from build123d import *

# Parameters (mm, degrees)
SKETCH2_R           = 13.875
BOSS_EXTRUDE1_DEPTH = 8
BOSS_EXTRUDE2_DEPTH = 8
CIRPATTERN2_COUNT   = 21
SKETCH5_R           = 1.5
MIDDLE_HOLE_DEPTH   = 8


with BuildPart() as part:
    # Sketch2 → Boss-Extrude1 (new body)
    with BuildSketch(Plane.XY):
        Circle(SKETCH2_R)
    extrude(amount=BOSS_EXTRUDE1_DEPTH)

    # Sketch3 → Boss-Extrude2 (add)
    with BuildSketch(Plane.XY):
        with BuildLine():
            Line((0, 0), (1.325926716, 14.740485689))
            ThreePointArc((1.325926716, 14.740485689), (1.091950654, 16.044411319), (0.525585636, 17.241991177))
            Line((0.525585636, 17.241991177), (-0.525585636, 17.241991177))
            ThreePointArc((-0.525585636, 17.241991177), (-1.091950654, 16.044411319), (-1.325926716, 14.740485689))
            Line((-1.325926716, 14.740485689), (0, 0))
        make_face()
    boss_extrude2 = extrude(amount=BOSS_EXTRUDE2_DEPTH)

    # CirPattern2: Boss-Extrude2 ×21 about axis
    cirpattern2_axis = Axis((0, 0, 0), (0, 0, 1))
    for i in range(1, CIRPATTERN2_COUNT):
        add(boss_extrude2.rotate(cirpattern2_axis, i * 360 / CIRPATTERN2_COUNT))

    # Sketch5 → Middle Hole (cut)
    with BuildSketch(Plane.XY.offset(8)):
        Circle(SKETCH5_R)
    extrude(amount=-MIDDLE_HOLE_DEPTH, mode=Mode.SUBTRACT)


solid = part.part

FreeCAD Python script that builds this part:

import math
import FreeCAD as App
import Part
import Sketcher

V = App.Vector
Q = App.Units.Quantity

doc = App.newDocument("Part")
body = doc.addObject("PartDesign::Body", "Body")

sketch1 = doc.addObject("Sketcher::SketchObject", "Sketch")
body.addObject(sketch1)
sketch1.AttachmentSupport = (doc.XY_Plane, [""])
sketch1.MapMode = "FlatFace"
sketch1.addGeometry(Part.Circle(V(0, 0, 0), V(0, 0, 1), 13.875), False)
sketch1.addConstraint(Sketcher.Constraint("Coincident", 0, 3, -1, 1))
sketch1.addConstraint(Sketcher.Constraint("Diameter", 0, Q("27.75 mm")))
pad1 = doc.addObject("PartDesign::Pad", "Pad")
body.addObject(pad1)
pad1.Profile = sketch1
pad1.Length = 8

sketch2 = doc.addObject("Sketcher::SketchObject", "Sketch001")
body.addObject(sketch2)
sketch2.AttachmentSupport = (doc.XY_Plane, [""])
sketch2.MapMode = "FlatFace"
sketch2.addGeometry(Part.LineSegment(V(0, 0, 0), V(1.325927, 14.740486, 0)), False)
sketch2.addGeometry(Part.ArcOfCircle(Part.Circle(V(-3.697628, 14.512016, 0), V(0, 0, 1), 5.028747), math.radians(2.604005), math.radians(32.879492)), False)
sketch2.addGeometry(Part.LineSegment(V(0.525586, 17.241991, 0), V(-0.525586, 17.241991, 0)), False)
sketch2.addGeometry(Part.ArcOfCircle(Part.Circle(V(3.697628, 14.512016, 0), V(0, 0, 1), 5.028747), math.radians(147.120508), math.radians(177.395995)), False)
sketch2.addGeometry(Part.LineSegment(V(-1.325927, 14.740486, 0), V(0, 0, 0)), False)
sketch2.addConstraint(Sketcher.Constraint("Coincident", 0, 2, 1, 1))
sketch2.addConstraint(Sketcher.Constraint("Coincident", 1, 2, 2, 1))
sketch2.addConstraint(Sketcher.Constraint("Coincident", 2, 2, 3, 1))
sketch2.addConstraint(Sketcher.Constraint("Coincident", 3, 2, 4, 1))
sketch2.addConstraint(Sketcher.Constraint("Coincident", 4, 2, 0, 1))
sketch2.addConstraint(Sketcher.Constraint("Horizontal", 2))
sketch2.addConstraint(Sketcher.Constraint("Coincident", 4, 2, -1, 1))
sketch2.addConstraint(Sketcher.Constraint("Equal", 1, 3))
sketch2.addConstraint(Sketcher.Constraint("Symmetric", 1, 3, 3, 3, -2))
sketch2.addConstraint(Sketcher.Constraint("Horizontal", 0, 2, 3, 2))
sketch2.addConstraint(Sketcher.Constraint("Distance", 0, Q("14.8 mm")))
sketch2.addConstraint(Sketcher.Constraint("Angle", 0, Q("84.86 deg")))
sketch2.addConstraint(Sketcher.Constraint("Radius", 1, Q("5.028747 mm")))
sketch2.addConstraint(Sketcher.Constraint("DistanceX", 2, 2, 2, 1, Q("1.051171 mm")))
sketch2.addConstraint(Sketcher.Constraint("DistanceX", 0, 2, 3, 3, Q("2.371701 mm")))
pad2 = doc.addObject("PartDesign::Pad", "Pad001")
body.addObject(pad2)
pad2.Profile = sketch2
pad2.Length = 8
doc.recompute()

polarpattern = doc.addObject("PartDesign::PolarPattern", "PolarPattern")
body.addObject(polarpattern)
polarpattern.Originals = [pad2]
polarpattern.Axis = (doc.Z_Axis, [""])
polarpattern.Angle = 360
polarpattern.Occurrences = 21
body.Tip = polarpattern

sketch3 = doc.addObject("Sketcher::SketchObject", "Sketch002")
body.addObject(sketch3)
sketch3.AttachmentSupport = (doc.XY_Plane, [""])
sketch3.MapMode = "FlatFace"
sketch3.AttachmentOffset = App.Placement(V(0, 0, 8), App.Rotation())
sketch3.addGeometry(Part.Circle(V(0, 0, 0), V(0, 0, 1), 1.5), False)
sketch3.addConstraint(Sketcher.Constraint("Coincident", 0, 3, -1, 1))
sketch3.addConstraint(Sketcher.Constraint("Diameter", 0, Q("3 mm")))
pocket1 = doc.addObject("PartDesign::Pocket", "Pocket")
body.addObject(pocket1)
pocket1.Profile = sketch3
pocket1.Length = 8

doc.recompute()
